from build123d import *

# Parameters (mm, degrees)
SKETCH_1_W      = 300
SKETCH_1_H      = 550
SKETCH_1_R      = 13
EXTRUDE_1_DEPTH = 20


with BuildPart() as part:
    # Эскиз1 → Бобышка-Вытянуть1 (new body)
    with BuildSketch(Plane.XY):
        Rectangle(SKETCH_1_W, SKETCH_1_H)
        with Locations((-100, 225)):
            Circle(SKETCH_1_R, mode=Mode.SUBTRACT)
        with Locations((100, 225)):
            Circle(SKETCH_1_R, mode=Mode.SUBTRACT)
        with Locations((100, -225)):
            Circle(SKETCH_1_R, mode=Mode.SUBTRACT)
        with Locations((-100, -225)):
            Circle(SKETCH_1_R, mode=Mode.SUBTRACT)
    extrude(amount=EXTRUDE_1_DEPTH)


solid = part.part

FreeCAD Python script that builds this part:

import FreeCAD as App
import Part
import Sketcher
from FreeCAD import Vector
Q = App.Units.Quantity

doc = App.newDocument("Part")
body = doc.addObject("PartDesign::Body", "Body")

# Sketch on XY plane
sketch1 = doc.addObject("Sketcher::SketchObject", "Sketch")
body.addObject(sketch1)
sketch1.AttachmentSupport = (doc.XY_Plane, [""])
sketch1.MapMode = "FlatFace"
sketch1.addGeometry([
    Part.LineSegment(Vector(-150, 275, 0), Vector(-150, -275, 0)),  # 0
    Part.LineSegment(Vector(-150, -275, 0), Vector(150, -275, 0)),  # 1
    Part.LineSegment(Vector(150, -275, 0), Vector(150, 275, 0)),  # 2
    Part.LineSegment(Vector(150, 275, 0), Vector(-150, 275, 0)),  # 3
    Part.Circle(Vector(-100, -225, 0), Vector(0, 0, 1), 13),  # 4
    Part.Circle(Vector(100, -225, 0), Vector(0, 0, 1), 13),  # 5
    Part.Circle(Vector(-100, 225, 0), Vector(0, 0, 1), 13),  # 6
    Part.Circle(Vector(100, 225, 0), Vector(0, 0, 1), 13),  # 7
], False)
sketch1.addConstraint([
    Sketcher.Constraint("Coincident", 0, 2, 1, 1),
    Sketcher.Constraint("Coincident", 1, 2, 2, 1),
    Sketcher.Constraint("Coincident", 2, 2, 3, 1),
    Sketcher.Constraint("Coincident", 3, 2, 0, 1),
    Sketcher.Constraint("Vertical", 0),
    Sketcher.Constraint("Horizontal", 1),
    Sketcher.Constraint("Vertical", 2),
    Sketcher.Constraint("Horizontal", 3),
    Sketcher.Constraint("Equal", 4, 5),
    Sketcher.Constraint("Equal", 5, 6),
    Sketcher.Constraint("Equal", 6, 7),
    Sketcher.Constraint("Symmetric", 5, 3, 6, 3, -1, 1),
    Sketcher.Constraint("Symmetric", 4, 3, 7, 3, -1, 1),
    Sketcher.Constraint("Symmetric", 0, 2, 2, 2, -1, 1),
    Sketcher.Constraint("Symmetric", 4, 3, 5, 3, -2),
    Sketcher.Constraint("Diameter", 4, Q("26 mm")),
    Sketcher.Constraint("DistanceX", 1, 1, 1, 2, Q("300 mm")),
    Sketcher.Constraint("DistanceY", 0, 2, 0, 1, Q("550 mm")),
    Sketcher.Constraint("DistanceX", 4, 3, -1, 1, Q("100 mm")),
    Sketcher.Constraint("DistanceY", 4, 3, -1, 1, Q("225 mm")),
])
pad1 = doc.addObject("PartDesign::Pad", "Pad")
body.addObject(pad1)
pad1.Profile = sketch1
pad1.Length = 20

doc.recompute()
